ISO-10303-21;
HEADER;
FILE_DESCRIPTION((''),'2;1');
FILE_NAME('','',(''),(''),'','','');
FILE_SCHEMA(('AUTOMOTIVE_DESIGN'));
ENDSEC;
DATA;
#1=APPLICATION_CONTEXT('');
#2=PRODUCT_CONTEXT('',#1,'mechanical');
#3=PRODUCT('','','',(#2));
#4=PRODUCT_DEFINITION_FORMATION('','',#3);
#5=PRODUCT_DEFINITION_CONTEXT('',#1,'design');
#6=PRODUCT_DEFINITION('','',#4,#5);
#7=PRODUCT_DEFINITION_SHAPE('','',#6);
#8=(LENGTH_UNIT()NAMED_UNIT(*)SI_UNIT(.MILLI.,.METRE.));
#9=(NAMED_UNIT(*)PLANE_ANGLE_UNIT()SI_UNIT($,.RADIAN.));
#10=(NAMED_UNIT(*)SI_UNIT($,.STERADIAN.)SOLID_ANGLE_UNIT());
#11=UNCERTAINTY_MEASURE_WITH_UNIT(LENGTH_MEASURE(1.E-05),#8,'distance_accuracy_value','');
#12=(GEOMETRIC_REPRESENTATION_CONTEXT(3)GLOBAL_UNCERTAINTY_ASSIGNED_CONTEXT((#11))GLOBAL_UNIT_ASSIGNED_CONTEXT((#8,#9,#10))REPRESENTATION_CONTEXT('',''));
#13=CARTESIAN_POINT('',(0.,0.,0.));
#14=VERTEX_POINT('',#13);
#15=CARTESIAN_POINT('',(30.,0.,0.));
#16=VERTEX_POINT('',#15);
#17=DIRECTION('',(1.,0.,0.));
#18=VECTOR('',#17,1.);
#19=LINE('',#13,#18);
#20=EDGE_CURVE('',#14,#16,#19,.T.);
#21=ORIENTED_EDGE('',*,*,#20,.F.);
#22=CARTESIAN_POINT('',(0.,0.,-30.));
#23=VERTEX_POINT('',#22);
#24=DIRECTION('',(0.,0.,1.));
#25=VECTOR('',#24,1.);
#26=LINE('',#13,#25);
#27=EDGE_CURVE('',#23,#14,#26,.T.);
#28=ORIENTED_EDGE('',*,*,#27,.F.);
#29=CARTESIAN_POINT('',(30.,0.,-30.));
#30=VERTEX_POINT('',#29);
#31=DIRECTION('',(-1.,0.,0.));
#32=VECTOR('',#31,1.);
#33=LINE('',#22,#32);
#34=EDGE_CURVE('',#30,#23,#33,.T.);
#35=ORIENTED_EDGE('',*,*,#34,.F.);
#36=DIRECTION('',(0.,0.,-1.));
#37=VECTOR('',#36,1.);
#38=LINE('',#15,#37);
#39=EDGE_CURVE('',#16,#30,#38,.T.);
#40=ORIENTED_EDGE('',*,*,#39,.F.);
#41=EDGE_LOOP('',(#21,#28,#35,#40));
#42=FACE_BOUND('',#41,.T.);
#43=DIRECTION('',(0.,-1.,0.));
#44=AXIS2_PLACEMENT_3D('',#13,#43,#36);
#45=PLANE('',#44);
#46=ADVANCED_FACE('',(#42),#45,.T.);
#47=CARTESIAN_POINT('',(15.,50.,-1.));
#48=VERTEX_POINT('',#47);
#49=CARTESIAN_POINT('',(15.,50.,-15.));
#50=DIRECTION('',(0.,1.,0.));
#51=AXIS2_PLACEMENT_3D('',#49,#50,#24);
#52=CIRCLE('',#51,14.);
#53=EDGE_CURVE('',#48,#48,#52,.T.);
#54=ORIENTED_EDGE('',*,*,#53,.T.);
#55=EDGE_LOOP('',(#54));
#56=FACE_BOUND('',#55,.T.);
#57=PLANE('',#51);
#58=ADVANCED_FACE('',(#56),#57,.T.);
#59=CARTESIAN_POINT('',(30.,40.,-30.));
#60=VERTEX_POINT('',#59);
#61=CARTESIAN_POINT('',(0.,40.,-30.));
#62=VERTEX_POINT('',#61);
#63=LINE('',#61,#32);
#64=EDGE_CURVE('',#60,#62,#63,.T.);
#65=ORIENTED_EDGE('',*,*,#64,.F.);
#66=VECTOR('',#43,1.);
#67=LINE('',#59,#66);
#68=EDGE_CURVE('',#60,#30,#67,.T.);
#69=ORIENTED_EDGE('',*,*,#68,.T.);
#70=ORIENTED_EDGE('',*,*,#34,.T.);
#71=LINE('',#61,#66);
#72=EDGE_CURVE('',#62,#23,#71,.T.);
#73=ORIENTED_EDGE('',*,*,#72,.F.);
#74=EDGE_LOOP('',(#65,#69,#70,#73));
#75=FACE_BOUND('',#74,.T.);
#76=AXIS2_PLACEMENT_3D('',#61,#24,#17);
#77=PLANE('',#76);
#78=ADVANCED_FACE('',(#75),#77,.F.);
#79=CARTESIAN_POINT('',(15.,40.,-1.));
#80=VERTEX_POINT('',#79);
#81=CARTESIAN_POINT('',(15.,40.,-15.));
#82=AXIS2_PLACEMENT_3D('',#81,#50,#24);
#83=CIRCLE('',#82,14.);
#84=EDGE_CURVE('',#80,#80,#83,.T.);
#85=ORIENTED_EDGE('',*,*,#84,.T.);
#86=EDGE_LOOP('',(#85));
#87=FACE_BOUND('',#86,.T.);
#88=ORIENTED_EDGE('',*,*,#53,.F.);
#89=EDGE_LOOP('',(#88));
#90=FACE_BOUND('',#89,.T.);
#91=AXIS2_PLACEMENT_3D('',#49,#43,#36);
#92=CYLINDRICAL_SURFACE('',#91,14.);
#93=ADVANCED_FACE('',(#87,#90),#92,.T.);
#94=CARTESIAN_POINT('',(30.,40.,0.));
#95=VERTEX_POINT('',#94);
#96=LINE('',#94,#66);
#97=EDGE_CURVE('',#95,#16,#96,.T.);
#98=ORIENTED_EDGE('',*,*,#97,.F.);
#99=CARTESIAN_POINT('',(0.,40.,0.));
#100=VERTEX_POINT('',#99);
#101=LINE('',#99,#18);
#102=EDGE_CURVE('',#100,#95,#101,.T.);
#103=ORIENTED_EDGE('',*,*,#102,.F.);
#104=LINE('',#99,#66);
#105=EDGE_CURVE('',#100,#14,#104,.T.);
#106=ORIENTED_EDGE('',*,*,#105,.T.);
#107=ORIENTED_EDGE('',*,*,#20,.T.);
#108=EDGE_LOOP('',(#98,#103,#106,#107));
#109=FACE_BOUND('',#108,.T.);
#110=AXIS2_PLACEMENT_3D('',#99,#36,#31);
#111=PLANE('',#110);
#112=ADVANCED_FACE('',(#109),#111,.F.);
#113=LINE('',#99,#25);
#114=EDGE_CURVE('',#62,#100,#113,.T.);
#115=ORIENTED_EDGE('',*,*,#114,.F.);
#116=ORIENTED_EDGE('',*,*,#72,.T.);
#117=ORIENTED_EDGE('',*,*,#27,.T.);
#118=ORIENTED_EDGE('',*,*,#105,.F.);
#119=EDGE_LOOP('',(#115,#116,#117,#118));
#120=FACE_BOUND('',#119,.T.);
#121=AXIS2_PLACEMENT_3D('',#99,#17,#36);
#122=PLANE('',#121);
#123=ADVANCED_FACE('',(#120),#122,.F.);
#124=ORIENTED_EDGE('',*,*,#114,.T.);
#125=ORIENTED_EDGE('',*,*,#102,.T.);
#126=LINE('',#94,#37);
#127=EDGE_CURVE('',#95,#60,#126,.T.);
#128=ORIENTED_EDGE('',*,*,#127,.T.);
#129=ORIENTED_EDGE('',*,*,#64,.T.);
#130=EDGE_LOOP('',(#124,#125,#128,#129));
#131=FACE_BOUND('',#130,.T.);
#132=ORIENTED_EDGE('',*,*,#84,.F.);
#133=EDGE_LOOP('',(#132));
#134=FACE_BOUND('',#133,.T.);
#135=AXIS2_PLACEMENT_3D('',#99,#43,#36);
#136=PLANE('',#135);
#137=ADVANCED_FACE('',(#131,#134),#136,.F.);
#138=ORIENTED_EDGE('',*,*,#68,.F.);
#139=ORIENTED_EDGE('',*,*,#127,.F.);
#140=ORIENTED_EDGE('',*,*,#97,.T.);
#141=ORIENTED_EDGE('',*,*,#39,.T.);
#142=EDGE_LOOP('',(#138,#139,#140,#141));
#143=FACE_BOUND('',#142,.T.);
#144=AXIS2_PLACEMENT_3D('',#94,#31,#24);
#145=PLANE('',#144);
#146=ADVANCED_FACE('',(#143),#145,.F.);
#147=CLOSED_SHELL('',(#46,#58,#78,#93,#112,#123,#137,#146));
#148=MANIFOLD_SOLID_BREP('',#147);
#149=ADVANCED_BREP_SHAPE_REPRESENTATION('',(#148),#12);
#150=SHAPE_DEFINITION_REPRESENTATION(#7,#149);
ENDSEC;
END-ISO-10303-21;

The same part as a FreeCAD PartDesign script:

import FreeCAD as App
import Part
import Sketcher

doc = App.newDocument("Part")
body = doc.addObject("PartDesign::Body", "Body")

# Sketch on XZ plane
sketch1 = doc.addObject("Sketcher::SketchObject", "Sketch")
body.addObject(sketch1)
sketch1.AttachmentSupport = (doc.XZ_Plane, [""])
sketch1.MapMode = "FlatFace"
sketch1.addGeometry(Part.LineSegment(App.Vector(0, -30, 0), App.Vector(0, 0, 0)), False)
sketch1.addGeometry(Part.LineSegment(App.Vector(0, 0, 0), App.Vector(30, 0, 0)), False)
sketch1.addGeometry(Part.LineSegment(App.Vector(30, 0, 0), App.Vector(30, -30, 0)), False)
sketch1.addGeometry(Part.LineSegment(App.Vector(30, -30, 0), App.Vector(0, -30, 0)), False)
sketch1.addConstraint(Sketcher.Constraint("Coincident", 0, 2, 1, 1))
sketch1.addConstraint(Sketcher.Constraint("Coincident", 1, 2, 2, 1))
sketch1.addConstraint(Sketcher.Constraint("Coincident", 2, 2, 3, 1))
sketch1.addConstraint(Sketcher.Constraint("Coincident", 3, 2, 0, 1))
sketch1.addConstraint(Sketcher.Constraint("Vertical", 0))
sketch1.addConstraint(Sketcher.Constraint("Horizontal", 1))
sketch1.addConstraint(Sketcher.Constraint("Vertical", 2))
sketch1.addConstraint(Sketcher.Constraint("Horizontal", 3))
sketch1.addConstraint(Sketcher.Constraint("Coincident", 0, 2, -1, 1))
sketch1.addConstraint(Sketcher.Constraint("Equal", 3, 0))
sketch1.addConstraint(Sketcher.Constraint("DistanceX", 1, 1, 1, 2, 30.0))
pad1 = doc.addObject("PartDesign::Pad", "Pad")
body.addObject(pad1)
pad1.Profile = sketch1
pad1.Length = 40
pad1.Reversed = True

# Sketch on XZ plane
sketch2 = doc.addObject("Sketcher::SketchObject", "Sketch001")
body.addObject(sketch2)
sketch2.AttachmentSupport = (doc.XZ_Plane, [""])
sketch2.MapMode = "FlatFace"
sketch2.AttachmentOffset = App.Placement(App.Vector(0, 0, -40), App.Rotation())
sketch2.addGeometry(Part.Circle(App.Vector(15, -15, 0), App.Vector(0, 0, 1), 14), False)
sketch2.addConstraint(Sketcher.Constraint("Diameter", 0, 28.0))
sketch2.addConstraint(Sketcher.Constraint("DistanceX", -1, 1, 0, 3, 15.0))
sketch2.addConstraint(Sketcher.Constraint("DistanceY", 0, 3, -1, 1, 15.0))
pad2 = doc.addObject("PartDesign::Pad", "Pad001")
body.addObject(pad2)
pad2.Profile = sketch2
pad2.Length = 10
pad2.Reversed = True

doc.recompute()
